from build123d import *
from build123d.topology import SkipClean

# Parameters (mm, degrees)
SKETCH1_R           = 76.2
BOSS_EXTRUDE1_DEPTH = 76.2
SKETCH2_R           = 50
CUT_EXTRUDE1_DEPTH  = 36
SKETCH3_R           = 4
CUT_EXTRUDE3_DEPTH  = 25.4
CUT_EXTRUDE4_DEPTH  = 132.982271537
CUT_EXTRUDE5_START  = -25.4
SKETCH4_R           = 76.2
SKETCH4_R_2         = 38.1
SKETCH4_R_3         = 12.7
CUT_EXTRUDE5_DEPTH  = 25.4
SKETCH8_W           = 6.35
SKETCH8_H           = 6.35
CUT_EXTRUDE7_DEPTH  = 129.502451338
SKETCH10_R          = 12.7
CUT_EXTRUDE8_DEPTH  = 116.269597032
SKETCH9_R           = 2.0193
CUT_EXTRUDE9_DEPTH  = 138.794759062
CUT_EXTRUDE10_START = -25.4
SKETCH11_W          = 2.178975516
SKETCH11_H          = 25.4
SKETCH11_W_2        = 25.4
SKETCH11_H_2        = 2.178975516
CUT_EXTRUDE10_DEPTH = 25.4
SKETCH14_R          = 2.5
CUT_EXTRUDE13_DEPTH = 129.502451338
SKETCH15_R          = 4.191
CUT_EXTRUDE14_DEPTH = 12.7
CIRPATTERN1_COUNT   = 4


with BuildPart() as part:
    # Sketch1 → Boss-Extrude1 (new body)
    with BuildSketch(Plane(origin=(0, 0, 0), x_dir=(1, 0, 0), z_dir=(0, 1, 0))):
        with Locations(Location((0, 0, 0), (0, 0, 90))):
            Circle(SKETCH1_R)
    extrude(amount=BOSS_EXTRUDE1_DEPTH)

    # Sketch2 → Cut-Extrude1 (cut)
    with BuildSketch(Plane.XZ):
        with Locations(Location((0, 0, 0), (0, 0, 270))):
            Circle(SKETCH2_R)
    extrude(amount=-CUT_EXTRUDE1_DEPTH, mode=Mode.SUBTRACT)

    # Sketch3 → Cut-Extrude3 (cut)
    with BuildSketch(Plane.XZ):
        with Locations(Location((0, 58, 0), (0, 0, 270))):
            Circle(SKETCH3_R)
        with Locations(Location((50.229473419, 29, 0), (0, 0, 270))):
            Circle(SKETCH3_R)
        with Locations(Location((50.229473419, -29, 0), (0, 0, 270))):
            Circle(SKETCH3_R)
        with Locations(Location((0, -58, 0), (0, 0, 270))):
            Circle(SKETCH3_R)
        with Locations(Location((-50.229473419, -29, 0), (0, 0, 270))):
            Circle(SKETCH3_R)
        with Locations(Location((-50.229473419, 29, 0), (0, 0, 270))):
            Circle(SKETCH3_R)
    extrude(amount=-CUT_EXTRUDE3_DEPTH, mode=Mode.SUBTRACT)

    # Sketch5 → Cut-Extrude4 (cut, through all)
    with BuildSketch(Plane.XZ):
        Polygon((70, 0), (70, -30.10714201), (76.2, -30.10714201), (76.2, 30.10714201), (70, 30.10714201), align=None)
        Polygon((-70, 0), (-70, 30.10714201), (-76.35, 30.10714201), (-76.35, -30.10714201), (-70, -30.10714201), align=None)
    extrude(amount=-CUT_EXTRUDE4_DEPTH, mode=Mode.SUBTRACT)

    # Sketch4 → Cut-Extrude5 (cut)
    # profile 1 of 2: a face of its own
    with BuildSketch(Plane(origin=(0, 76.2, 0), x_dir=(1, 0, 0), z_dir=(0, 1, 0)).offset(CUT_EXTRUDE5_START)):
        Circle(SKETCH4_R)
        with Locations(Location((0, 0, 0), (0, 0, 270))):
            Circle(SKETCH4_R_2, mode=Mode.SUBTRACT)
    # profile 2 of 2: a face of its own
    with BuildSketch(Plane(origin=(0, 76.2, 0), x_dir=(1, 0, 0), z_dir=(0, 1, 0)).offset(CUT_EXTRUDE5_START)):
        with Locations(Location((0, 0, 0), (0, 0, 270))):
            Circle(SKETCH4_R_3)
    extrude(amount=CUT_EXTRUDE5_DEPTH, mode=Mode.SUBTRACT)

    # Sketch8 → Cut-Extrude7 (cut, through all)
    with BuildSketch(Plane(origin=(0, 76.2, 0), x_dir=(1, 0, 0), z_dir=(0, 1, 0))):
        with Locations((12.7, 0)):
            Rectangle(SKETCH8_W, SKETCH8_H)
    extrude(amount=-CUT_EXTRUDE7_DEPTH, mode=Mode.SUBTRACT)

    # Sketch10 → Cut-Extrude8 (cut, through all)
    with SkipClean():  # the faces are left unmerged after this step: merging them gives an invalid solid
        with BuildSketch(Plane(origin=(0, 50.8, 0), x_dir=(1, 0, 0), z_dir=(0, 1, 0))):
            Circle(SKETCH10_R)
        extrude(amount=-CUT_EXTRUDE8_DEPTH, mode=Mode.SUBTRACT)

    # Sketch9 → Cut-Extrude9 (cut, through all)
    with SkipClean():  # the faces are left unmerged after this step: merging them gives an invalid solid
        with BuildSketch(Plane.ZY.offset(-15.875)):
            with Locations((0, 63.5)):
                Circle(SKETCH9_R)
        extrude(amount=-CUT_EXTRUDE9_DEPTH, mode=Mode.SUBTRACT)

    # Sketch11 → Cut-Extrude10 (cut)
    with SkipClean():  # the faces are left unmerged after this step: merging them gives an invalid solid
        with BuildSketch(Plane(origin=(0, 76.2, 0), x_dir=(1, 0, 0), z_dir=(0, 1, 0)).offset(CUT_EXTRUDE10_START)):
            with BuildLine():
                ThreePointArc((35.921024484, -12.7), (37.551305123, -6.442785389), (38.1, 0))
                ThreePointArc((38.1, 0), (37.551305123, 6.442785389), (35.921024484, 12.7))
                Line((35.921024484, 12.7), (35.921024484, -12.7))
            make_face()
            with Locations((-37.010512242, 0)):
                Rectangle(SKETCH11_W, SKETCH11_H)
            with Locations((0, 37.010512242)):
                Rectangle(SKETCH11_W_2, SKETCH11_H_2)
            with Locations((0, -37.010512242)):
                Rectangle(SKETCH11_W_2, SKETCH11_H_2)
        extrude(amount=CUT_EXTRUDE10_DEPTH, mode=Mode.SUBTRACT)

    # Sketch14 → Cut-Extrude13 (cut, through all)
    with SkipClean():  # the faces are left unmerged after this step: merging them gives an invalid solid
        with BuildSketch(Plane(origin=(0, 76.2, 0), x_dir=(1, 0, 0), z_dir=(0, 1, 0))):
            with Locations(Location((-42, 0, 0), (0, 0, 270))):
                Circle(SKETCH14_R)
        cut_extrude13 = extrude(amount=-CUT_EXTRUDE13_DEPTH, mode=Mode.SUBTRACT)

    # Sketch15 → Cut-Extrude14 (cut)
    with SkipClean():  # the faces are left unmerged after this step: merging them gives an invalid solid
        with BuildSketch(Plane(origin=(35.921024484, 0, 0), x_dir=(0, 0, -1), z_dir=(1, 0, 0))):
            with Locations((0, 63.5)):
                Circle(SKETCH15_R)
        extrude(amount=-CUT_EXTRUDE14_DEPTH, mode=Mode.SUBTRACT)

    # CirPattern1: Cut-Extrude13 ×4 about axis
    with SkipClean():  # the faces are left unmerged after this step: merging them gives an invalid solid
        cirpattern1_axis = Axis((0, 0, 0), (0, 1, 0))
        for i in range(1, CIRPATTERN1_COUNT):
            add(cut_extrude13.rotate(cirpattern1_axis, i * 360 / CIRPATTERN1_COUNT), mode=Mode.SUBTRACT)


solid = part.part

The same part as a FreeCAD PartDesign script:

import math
import FreeCAD as App
import Part
import Sketcher

V = App.Vector
Q = App.Units.Quantity


def add_polygon(sketch, points):
    """Adds a closed chain of lines whose ends are joined by coincident constraints."""
    first, n = sketch.GeometryCount, len(points)
    for a, b in zip(points, points[1:] + points[:1]):
        sketch.addGeometry(Part.LineSegment(App.Vector(*a, 0), App.Vector(*b, 0)), False)
    for i in range(n):
        sketch.addConstraint(Sketcher.Constraint("Coincident", first + i, 2, first + (i + 1) % n, 1))

doc = App.newDocument("Part")
body = doc.addObject("PartDesign::Body", "Body")

sketch1 = body.newObject("Sketcher::SketchObject", "Sketch")
sketch1.AttachmentSupport = (doc.getObject("XZ_Plane"), [""])
sketch1.MapMode = "FlatFace"
sketch1.addGeometry(Part.Circle(V(0, 0, 0), V(0, 0, 1), 76.2), False)
sketch1.addConstraint([
    Sketcher.Constraint("Coincident", 0, 3, -1, 1),
    Sketcher.Constraint("Diameter", 0, Q("6 in")),
])
pad1 = body.newObject("PartDesign::Pad", "Pad")
pad1.Profile = sketch1
pad1.Length = Q("3 in")
pad1.Reversed = True

sketch2 = body.newObject("Sketcher::SketchObject", "Sketch001")
sketch2.AttachmentSupport = (doc.getObject("XZ_Plane"), [""])
sketch2.MapMode = "FlatFace"
sketch2.addGeometry(Part.Circle(V(0, 0, 0), V(0, 0, 1), 50), False)
sketch2.addConstraint([
    Sketcher.Constraint("Coincident", 0, 3, -1, 1),
    Sketcher.Constraint("Diameter", 0, 100.0),
])
pocket1 = body.newObject("PartDesign::Pocket", "Pocket")
pocket1.Profile = sketch2
pocket1.Length = 36

sketch3 = body.newObject("Sketcher::SketchObject", "Sketch002")
sketch3.AttachmentSupport = (doc.getObject("XZ_Plane"), [""])
sketch3.MapMode = "FlatFace"
sketch3.addGeometry([
    Part.Circle(V(0, 58, 0), V(0, 0, 1), 4),
    Part.Circle(V(50.229473, 29, 0), V(0, 0, 1), 4),
    Part.Circle(V(50.229473, -29, 0), V(0, 0, 1), 4),
    Part.Circle(V(0, -58, 0), V(0, 0, 1), 4),
    Part.Circle(V(-50.229473, -29, 0), V(0, 0, 1), 4),
    Part.Circle(V(-50.229473, 29, 0), V(0, 0, 1), 4),
], False)
sketch3.addConstraint([
    Sketcher.Constraint("Equal", 0, 1),
    Sketcher.Constraint("Equal", 1, 2),
    Sketcher.Constraint("Equal", 2, 3),
    Sketcher.Constraint("Equal", 3, 4),
    Sketcher.Constraint("Equal", 4, 5),
    Sketcher.Constraint("Symmetric", 0, 3, 3, 3, -1, 1),
    Sketcher.Constraint("Symmetric", 1, 3, 4, 3, -1, 1),
    Sketcher.Constraint("Symmetric", 2, 3, 5, 3, -1, 1),
    Sketcher.Constraint("Symmetric", 2, 3, 4, 3, -2),
    Sketcher.Constraint("PointOnObject", 0, 3, -2),
    Sketcher.Constraint("Diameter", 0, 8.0),
    Sketcher.Constraint("DistanceY", -1, 1, 0, 3, 58.0),
    Sketcher.Constraint("DistanceY", -1, 1, 1, 3, 29.0),
    Sketcher.Constraint("DistanceX", -1, 1, 1, 3, 50.229473),
])
pocket2 = body.newObject("PartDesign::Pocket", "Pocket001")
pocket2.Profile = sketch3
pocket2.Length = Q("1 in")

sketch4 = body.newObject("Sketcher::SketchObject", "Sketch003")
sketch4.AttachmentSupport = (doc.getObject("XZ_Plane"), [""])
sketch4.MapMode = "FlatFace"
add_polygon(sketch4, [(70, -30.107142), (76.2, -30.107142), (76.2, 30.107142), (70, 30.107142)])
add_polygon(sketch4, [(-70, 30.107142), (-76.35, 30.107142), (-76.35, -30.107142), (-70, -30.107142)])
sketch4.addConstraint([
    Sketcher.Constraint("Horizontal", 0),
    Sketcher.Constraint("Vertical", 1),
    Sketcher.Constraint("Horizontal", 2),
    Sketcher.Constraint("Vertical", 3),
    Sketcher.Constraint("Horizontal", 4),
    Sketcher.Constraint("Vertical", 5),
    Sketcher.Constraint("Horizontal", 6),
    Sketcher.Constraint("Vertical", 7),
    Sketcher.Constraint("Symmetric", 2, 2, 6, 2, -1, 1),
    Sketcher.Constraint("Horizontal", 2, 2, 4, 2),
    Sketcher.Constraint("Horizontal", 3, 2, 5, 2),
    Sketcher.Constraint("DistanceX", -1, 1, 0, 2, Q("3 in")),
    Sketcher.Constraint("DistanceX", 4, 2, 4, 1, Q("0.25 in")),
    Sketcher.Constraint("DistanceX", 0, 1, 0, 2, 6.2),
    Sketcher.Constraint("DistanceY", 1, 1, 1, 2, 60.214284),
])
pocket3 = body.newObject("PartDesign::Pocket", "Pocket002")
pocket3.Profile = sketch4
pocket3.Type = "ThroughAll"

sketch5 = body.newObject("Sketcher::SketchObject", "Sketch004")
sketch5.AttachmentSupport = (doc.getObject("XZ_Plane"), [""])
sketch5.MapMode = "FlatFace"
sketch5.AttachmentOffset = App.Placement(V(0, 0, -2 * 25.4), App.Rotation())
sketch5.addGeometry([
    Part.Circle(V(0, 0, 0), V(0, 0, 1), 76.2),
    Part.Circle(V(0, 0, 0), V(0, 0, 1), 38.1),
    Part.Circle(V(0, 0, 0), V(0, 0, 1), 12.7),
], False)
sketch5.addConstraint([
    Sketcher.Constraint("Coincident", 0, 3, -1, 1),
    Sketcher.Constraint("Coincident", 1, 3, -1, 1),
    Sketcher.Constraint("Coincident", 2, 3, -1, 1),
    Sketcher.Constraint("Diameter", 0, Q("6 in")),
    Sketcher.Constraint("Diameter", 1, Q("3 in")),
    Sketcher.Constraint("Diameter", 2, Q("1 in")),
])
pocket4 = body.newObject("PartDesign::Pocket", "Pocket003")
pocket4.Profile = sketch5
pocket4.Length = Q("1 in")

sketch6 = body.newObject("Sketcher::SketchObject", "Sketch005")
sketch6.AttachmentSupport = (doc.getObject("XZ_Plane"), [""])
sketch6.MapMode = "FlatFace"
sketch6.AttachmentOffset = App.Placement(V(0, 0, -3 * 25.4), App.Rotation())
add_polygon(sketch6, [(9.525, -3.175), (9.525, 3.175), (15.875, 3.175), (15.875, -3.175)])
sketch6.addConstraint([
    Sketcher.Constraint("Vertical", 0),
    Sketcher.Constraint("Horizontal", 1),
    Sketcher.Constraint("Vertical", 2),
    Sketcher.Constraint("Horizontal", 3),
    Sketcher.Constraint("Equal", 3, 0),
    Sketcher.Constraint("DistanceX", 1, 1, 1, 2, Q("0.25 in")),
    Sketcher.Constraint("DistanceX", -1, 1, 0, 2, Q("0.375 in")),
    Sketcher.Constraint("DistanceY", -1, 1, 0, 2, Q("0.125 in")),
])
pocket5 = body.newObject("PartDesign::Pocket", "Pocket004")
pocket5.Profile = sketch6
pocket5.Type = "ThroughAll"
pocket5.Reversed = True

sketch7 = body.newObject("Sketcher::SketchObject", "Sketch006")
sketch7.AttachmentSupport = (doc.getObject("XZ_Plane"), [""])
sketch7.MapMode = "FlatFace"
sketch7.AttachmentOffset = App.Placement(V(0, 0, -2 * 25.4), App.Rotation())
sketch7.addGeometry(Part.Circle(V(0, 0, 0), V(0, 0, 1), 12.7), False)
sketch7.addConstraint([
    Sketcher.Constraint("Coincident", 0, 3, -1, 1),
    Sketcher.Constraint("Diameter", 0, Q("1 in")),
])
pocket6 = body.newObject("PartDesign::Pocket", "Pocket005")
pocket6.Profile = sketch7
pocket6.Type = "ThroughAll"
pocket6.Reversed = True

sketch8 = body.newObject("Sketcher::SketchObject", "Sketch007")
sketch8.AttachmentSupport = (doc.getObject("YZ_Plane"), [""])
sketch8.MapMode = "FlatFace"
sketch8.AttachmentOffset = App.Placement(V(0, 0, 0.625 * 25.4), App.Rotation())
sketch8.addGeometry(Part.Circle(V(63.5, 0, 0), V(0, 0, 1), 2.0193), False)
sketch8.addConstraint([
    Sketcher.Constraint("PointOnObject", 0, 3, -1),
    Sketcher.Constraint("Diameter", 0, Q("0.159 in")),
    Sketcher.Constraint("DistanceX", -1, 1, 0, 3, Q("2.5 in")),
])
pocket7 = body.newObject("PartDesign::Pocket", "Pocket006")
pocket7.Profile = sketch8
pocket7.Type = "ThroughAll"
pocket7.Reversed = True

sketch9 = body.newObject("Sketcher::SketchObject", "Sketch008")
sketch9.AttachmentSupport = (doc.getObject("XZ_Plane"), [""])
sketch9.MapMode = "FlatFace"
sketch9.AttachmentOffset = App.Placement(V(0, 0, -2 * 25.4), App.Rotation())
sketch9.addGeometry(Part.ArcOfCircle(Part.Circle(V(0, 0, 0), V(0, 0, 1), 38.1), math.radians(0), math.radians(19.471221)), False)
sketch9.addGeometry(Part.ArcOfCircle(Part.Circle(V(0, 0, 0), V(0, 0, 1), 38.1), math.radians(-19.471221), math.radians(0)), False)
sketch9.addGeometry(Part.LineSegment(V(35.921024, -12.7, 0), V(35.921024, 12.7, 0)), False)
add_polygon(sketch9, [(-38.1, -12.7), (-38.1, 12.7), (-35.921024, 12.7), (-35.921024, -12.7)])
add_polygon(sketch9, [(-12.7, -38.1), (-12.7, -35.921024), (12.7, -35.921024), (12.7, -38.1)])
add_polygon(sketch9, [(-12.7, 35.921024), (-12.7, 38.1), (12.7, 38.1), (12.7, 35.921024)])
sketch9.addConstraint([
    Sketcher.Constraint("Tangent", 0, 1, 1, 2),
    Sketcher.Constraint("Coincident", 1, 1, 2, 1),
    Sketcher.Constraint("Coincident", 2, 2, 0, 2),
    Sketcher.Constraint("Vertical", 2),
    Sketcher.Constraint("Vertical", 3),
    Sketcher.Constraint("Horizontal", 4),
    Sketcher.Constraint("Vertical", 5),
    Sketcher.Constraint("Horizontal", 6),
    Sketcher.Constraint("Vertical", 7),
    Sketcher.Constraint("Horizontal", 8),
    Sketcher.Constraint("Vertical", 9),
    Sketcher.Constraint("Horizontal", 10),
    Sketcher.Constraint("Vertical", 11),
    Sketcher.Constraint("Horizontal", 12),
    Sketcher.Constraint("Vertical", 13),
    Sketcher.Constraint("Horizontal", 14),
    Sketcher.Constraint("Coincident", 0, 3, -1, 1),
    Sketcher.Constraint("Equal", 0, 1),
    Sketcher.Constraint("Symmetric", 1, 1, 4, 2, -1, 1),
    Sketcher.Constraint("Symmetric", 9, 2, 11, 2, -1, 1),
    Sketcher.Constraint("Symmetric", 7, 2, 13, 2, -1, 1),
    Sketcher.Constraint("PointOnObject", 0, 1, -1),
    Sketcher.Constraint("Horizontal", 1, 1, 5, 2),
    Sketcher.Constraint("Vertical", 10, 2, 11, 2),
    Sketcher.Constraint("Equal", 14, 2),
    Sketcher.Constraint("Equal", 6, 7),
    Sketcher.Constraint("Radius", 0, Q("1.5 in")),
    Sketcher.Constraint("DistanceX", 8, 1, 8, 2, Q("1 in")),
    Sketcher.Constraint("DistanceX", 3, 2, 0, 1, Q("3 in")),
    Sketcher.Constraint("DistanceY", 9, 2, 1, 1, Q("1 in")),
])
pocket8 = body.newObject("PartDesign::Pocket", "Pocket007")
pocket8.Profile = sketch9
pocket8.Length = Q("1 in")

sketch10 = body.newObject("Sketcher::SketchObject", "Sketch009")
sketch10.AttachmentSupport = (doc.getObject("XZ_Plane"), [""])
sketch10.MapMode = "FlatFace"
sketch10.AttachmentOffset = App.Placement(V(0, 0, -3 * 25.4), App.Rotation())
sketch10.addGeometry(Part.Circle(V(-42, 0, 0), V(0, 0, 1), 2.5), False)
sketch10.addConstraint([
    Sketcher.Constraint("PointOnObject", 0, 3, -1),
    Sketcher.Constraint("Diameter", 0, 5.0),
    Sketcher.Constraint("DistanceX", 0, 3, -1, 1, 42.0),
])
pocket9 = body.newObject("PartDesign::Pocket", "Pocket008")
pocket9.Profile = sketch10
pocket9.Type = "ThroughAll"
pocket9.Reversed = True

sketch11 = body.newObject("Sketcher::SketchObject", "Sketch010")
sketch11.AttachmentSupport = (doc.getObject("YZ_Plane"), [""])
sketch11.MapMode = "FlatFace"
sketch11.AttachmentOffset = App.Placement(V(0, 0, 35.921024), App.Rotation())
sketch11.addGeometry(Part.Circle(V(63.5, 0, 0), V(0, 0, 1), 4.191), False)
sketch11.addConstraint([
    Sketcher.Constraint("PointOnObject", 0, 3, -1),
    Sketcher.Constraint("Diameter", 0, Q("0.33 in")),
    Sketcher.Constraint("DistanceX", -1, 1, 0, 3, Q("2.5 in")),
])
pocket10 = body.newObject("PartDesign::Pocket", "Pocket009")
pocket10.Profile = sketch11
pocket10.Length = Q("0.5 in")
doc.recompute()

polarpattern = body.newObject("PartDesign::PolarPattern", "PolarPattern")
polarpattern.Originals = [pocket9]
polarpattern.Axis = (doc.getObject("Y_Axis"), [""])
polarpattern.Angle = 360
polarpattern.Occurrences = 4
body.Tip = polarpattern

doc.recompute()
